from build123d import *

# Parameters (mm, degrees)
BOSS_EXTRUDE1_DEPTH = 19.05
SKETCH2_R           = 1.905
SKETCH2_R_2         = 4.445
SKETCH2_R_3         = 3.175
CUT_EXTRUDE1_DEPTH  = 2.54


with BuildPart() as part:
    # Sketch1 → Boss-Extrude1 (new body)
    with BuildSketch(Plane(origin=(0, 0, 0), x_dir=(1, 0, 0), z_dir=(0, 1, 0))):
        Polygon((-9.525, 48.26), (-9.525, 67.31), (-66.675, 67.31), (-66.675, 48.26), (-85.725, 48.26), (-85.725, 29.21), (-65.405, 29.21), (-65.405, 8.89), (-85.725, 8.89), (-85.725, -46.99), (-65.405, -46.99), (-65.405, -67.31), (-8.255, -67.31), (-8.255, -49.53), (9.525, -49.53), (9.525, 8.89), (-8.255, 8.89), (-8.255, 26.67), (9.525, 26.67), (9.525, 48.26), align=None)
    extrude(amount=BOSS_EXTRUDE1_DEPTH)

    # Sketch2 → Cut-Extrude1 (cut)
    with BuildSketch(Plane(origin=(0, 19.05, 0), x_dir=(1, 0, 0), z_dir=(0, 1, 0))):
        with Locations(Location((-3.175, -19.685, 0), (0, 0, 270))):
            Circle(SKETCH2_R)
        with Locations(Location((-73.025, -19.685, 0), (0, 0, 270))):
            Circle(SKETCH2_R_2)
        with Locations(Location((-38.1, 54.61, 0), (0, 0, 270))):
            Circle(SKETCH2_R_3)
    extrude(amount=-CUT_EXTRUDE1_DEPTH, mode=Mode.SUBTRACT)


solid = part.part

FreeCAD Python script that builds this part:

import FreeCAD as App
import Part
import Sketcher
from FreeCAD import Vector
Q = App.Units.Quantity

doc = App.newDocument("Part")
body = doc.addObject("PartDesign::Body", "Body")

sketch1 = body.newObject("Sketcher::SketchObject", "Sketch")
sketch1.AttachmentSupport = (doc.getObject("XZ_Plane"), [""])
sketch1.MapMode = "FlatFace"
sketch1.addGeometry([
    Part.LineSegment(Vector(-10, -48, 0), Vector(-10, -67, 0)),
    Part.LineSegment(Vector(-10, -67, 0), Vector(-67, -67, 0)),
    Part.LineSegment(Vector(-67, -67, 0), Vector(-67, -48, 0)),
    Part.LineSegment(Vector(-67, -48, 0), Vector(-86, -48, 0)),
    Part.LineSegment(Vector(-86, -48, 0), Vector(-86, -29, 0)),
    Part.LineSegment(Vector(-86, -29, 0), Vector(-65, -29, 0)),
    Part.LineSegment(Vector(-65, -29, 0), Vector(-65, -9, 0)),
    Part.LineSegment(Vector(-65, -9, 0), Vector(-86, -9, 0)),
    Part.LineSegment(Vector(-86, -9, 0), Vector(-86, 47, 0)),
    Part.LineSegment(Vector(-86, 47, 0), Vector(-65, 47, 0)),
    Part.LineSegment(Vector(-65, 47, 0), Vector(-65, 67, 0)),
    Part.LineSegment(Vector(-65, 67, 0), Vector(-8, 67, 0)),
    Part.LineSegment(Vector(-8, 67, 0), Vector(-8, 50, 0)),
    Part.LineSegment(Vector(-8, 50, 0), Vector(10, 50, 0)),
    Part.LineSegment(Vector(10, 50, 0), Vector(10, -9, 0)),
    Part.LineSegment(Vector(10, -9, 0), Vector(-8, -9, 0)),
    Part.LineSegment(Vector(-8, -9, 0), Vector(-8, -27, 0)),
    Part.LineSegment(Vector(-8, -27, 0), Vector(10, -27, 0)),
    Part.LineSegment(Vector(10, -27, 0), Vector(10, -48, 0)),
    Part.LineSegment(Vector(10, -48, 0), Vector(-10, -48, 0)),
], False)
sketch1.addConstraint([
    Sketcher.Constraint("Coincident", 0, 2, 1, 1),
    Sketcher.Constraint("Coincident", 1, 2, 2, 1),
    Sketcher.Constraint("Coincident", 2, 2, 3, 1),
    Sketcher.Constraint("Coincident", 3, 2, 4, 1),
    Sketcher.Constraint("Coincident", 4, 2, 5, 1),
    Sketcher.Constraint("Coincident", 5, 2, 6, 1),
    Sketcher.Constraint("Coincident", 6, 2, 7, 1),
    Sketcher.Constraint("Coincident", 7, 2, 8, 1),
    Sketcher.Constraint("Coincident", 8, 2, 9, 1),
    Sketcher.Constraint("Coincident", 9, 2, 10, 1),
    Sketcher.Constraint("Coincident", 10, 2, 11, 1),
    Sketcher.Constraint("Coincident", 11, 2, 12, 1),
    Sketcher.Constraint("Coincident", 12, 2, 13, 1),
    Sketcher.Constraint("Coincident", 13, 2, 14, 1),
    Sketcher.Constraint("Coincident", 14, 2, 15, 1),
    Sketcher.Constraint("Coincident", 15, 2, 16, 1),
    Sketcher.Constraint("Coincident", 16, 2, 17, 1),
    Sketcher.Constraint("Coincident", 17, 2, 18, 1),
    Sketcher.Constraint("Coincident", 18, 2, 19, 1),
    Sketcher.Constraint("Coincident", 19, 2, 0, 1),
    Sketcher.Constraint("Vertical", 0),
    Sketcher.Constraint("Horizontal", 1),
    Sketcher.Constraint("Vertical", 2),
    Sketcher.Constraint("Horizontal", 3),
    Sketcher.Constraint("Vertical", 4),
    Sketcher.Constraint("Horizontal", 5),
    Sketcher.Constraint("Vertical", 6),
    Sketcher.Constraint("Horizontal", 7),
    Sketcher.Constraint("Vertical", 8),
    Sketcher.Constraint("Horizontal", 9),
    Sketcher.Constraint("Vertical", 10),
    Sketcher.Constraint("Horizontal", 11),
    Sketcher.Constraint("Vertical", 12),
    Sketcher.Constraint("Horizontal", 13),
    Sketcher.Constraint("Vertical", 14),
    Sketcher.Constraint("Horizontal", 15),
    Sketcher.Constraint("Vertical", 16),
    Sketcher.Constraint("Horizontal", 17),
    Sketcher.Constraint("Vertical", 18),
    Sketcher.Constraint("Horizontal", 19),
    Sketcher.Constraint("Horizontal", 7, 2, 14, 2),
    Sketcher.Constraint("Horizontal", 3, 2, 18, 2),
    Sketcher.Constraint("Vertical", 4, 2, 7, 2),
    Sketcher.Constraint("Vertical", 6, 2, 9, 2),
    Sketcher.Constraint("Vertical", 12, 2, 15, 2),
    Sketcher.Constraint("Vertical", 14, 2, 17, 2),
    Sketcher.Constraint("Equal", 1, 11),
    Sketcher.Constraint("Equal", 3, 19),
    Sketcher.Constraint("Equal", 19, 0),
    Sketcher.Constraint("Equal", 2, 4),
    Sketcher.Constraint("Equal", 9, 6),
    Sketcher.Constraint("Equal", 6, 10),
    Sketcher.Constraint("Equal", 17, 12),
    Sketcher.Constraint("Equal", 12, 16),
    Sketcher.Constraint("DistanceX", 5, 1, 5, 2, Q("0.8 in")),
    Sketcher.Constraint("DistanceX", 13, 1, 13, 2, Q("0.7 in")),
    Sketcher.Constraint("DistanceY", 8, 1, 8, 2, Q("2.2 in")),
    Sketcher.Constraint("DistanceX", 3, 2, 0, 2, Q("3 in")),
    Sketcher.Constraint("DistanceY", 2, 2, -1, 1, Q("1.9 in")),
    Sketcher.Constraint("DistanceX", 0, 2, -1, 1, Q("0.375 in")),
])
pad1 = body.newObject("PartDesign::Pad", "Pad")
pad1.Profile = sketch1
pad1.Length = Q("0.75 in")
pad1.Reversed = True

sketch2 = body.newObject("Sketcher::SketchObject", "Sketch001")
sketch2.AttachmentSupport = (doc.getObject("XZ_Plane"), [""])
sketch2.MapMode = "FlatFace"
sketch2.AttachmentOffset = App.Placement(Vector(0, 0, -0.75 * 25.4), App.Rotation())
sketch2.addGeometry([
    Part.Circle(Vector(-3.2, 19.7, 0), Vector(0, 0, 1), 1.9),
    Part.Circle(Vector(-73, 19.7, 0), Vector(0, 0, 1), 4.4),
    Part.Circle(Vector(-38.1, -54.6, 0), Vector(0, 0, 1), 3.2),
], False)
sketch2.addConstraint([
    Sketcher.Constraint("Horizontal", 0, 3, 1, 3),
    Sketcher.Constraint("Diameter", 0, Q("0.15 in")),
    Sketcher.Constraint("Diameter", 1, Q("0.35 in")),
    Sketcher.Constraint("Diameter", 2, Q("0.25 in")),
    Sketcher.Constraint("DistanceX", 2, 3, -1, 1, Q("1.5 in")),
    Sketcher.Constraint("DistanceY", 2, 3, -1, 1, Q("2.15 in")),
    Sketcher.Constraint("DistanceX", 1, 3, 0, 3, Q("2.75 in")),
    Sketcher.Constraint("DistanceX", 0, 3, -1, 1, Q("0.125 in")),
    Sketcher.Constraint("DistanceY", -1, 1, 0, 3, Q("0.775 in")),
])
pocket1 = body.newObject("PartDesign::Pocket", "Pocket")
pocket1.Profile = sketch2
pocket1.Length = Q("0.1 in")
pocket1.Reversed = True

doc.recompute()
